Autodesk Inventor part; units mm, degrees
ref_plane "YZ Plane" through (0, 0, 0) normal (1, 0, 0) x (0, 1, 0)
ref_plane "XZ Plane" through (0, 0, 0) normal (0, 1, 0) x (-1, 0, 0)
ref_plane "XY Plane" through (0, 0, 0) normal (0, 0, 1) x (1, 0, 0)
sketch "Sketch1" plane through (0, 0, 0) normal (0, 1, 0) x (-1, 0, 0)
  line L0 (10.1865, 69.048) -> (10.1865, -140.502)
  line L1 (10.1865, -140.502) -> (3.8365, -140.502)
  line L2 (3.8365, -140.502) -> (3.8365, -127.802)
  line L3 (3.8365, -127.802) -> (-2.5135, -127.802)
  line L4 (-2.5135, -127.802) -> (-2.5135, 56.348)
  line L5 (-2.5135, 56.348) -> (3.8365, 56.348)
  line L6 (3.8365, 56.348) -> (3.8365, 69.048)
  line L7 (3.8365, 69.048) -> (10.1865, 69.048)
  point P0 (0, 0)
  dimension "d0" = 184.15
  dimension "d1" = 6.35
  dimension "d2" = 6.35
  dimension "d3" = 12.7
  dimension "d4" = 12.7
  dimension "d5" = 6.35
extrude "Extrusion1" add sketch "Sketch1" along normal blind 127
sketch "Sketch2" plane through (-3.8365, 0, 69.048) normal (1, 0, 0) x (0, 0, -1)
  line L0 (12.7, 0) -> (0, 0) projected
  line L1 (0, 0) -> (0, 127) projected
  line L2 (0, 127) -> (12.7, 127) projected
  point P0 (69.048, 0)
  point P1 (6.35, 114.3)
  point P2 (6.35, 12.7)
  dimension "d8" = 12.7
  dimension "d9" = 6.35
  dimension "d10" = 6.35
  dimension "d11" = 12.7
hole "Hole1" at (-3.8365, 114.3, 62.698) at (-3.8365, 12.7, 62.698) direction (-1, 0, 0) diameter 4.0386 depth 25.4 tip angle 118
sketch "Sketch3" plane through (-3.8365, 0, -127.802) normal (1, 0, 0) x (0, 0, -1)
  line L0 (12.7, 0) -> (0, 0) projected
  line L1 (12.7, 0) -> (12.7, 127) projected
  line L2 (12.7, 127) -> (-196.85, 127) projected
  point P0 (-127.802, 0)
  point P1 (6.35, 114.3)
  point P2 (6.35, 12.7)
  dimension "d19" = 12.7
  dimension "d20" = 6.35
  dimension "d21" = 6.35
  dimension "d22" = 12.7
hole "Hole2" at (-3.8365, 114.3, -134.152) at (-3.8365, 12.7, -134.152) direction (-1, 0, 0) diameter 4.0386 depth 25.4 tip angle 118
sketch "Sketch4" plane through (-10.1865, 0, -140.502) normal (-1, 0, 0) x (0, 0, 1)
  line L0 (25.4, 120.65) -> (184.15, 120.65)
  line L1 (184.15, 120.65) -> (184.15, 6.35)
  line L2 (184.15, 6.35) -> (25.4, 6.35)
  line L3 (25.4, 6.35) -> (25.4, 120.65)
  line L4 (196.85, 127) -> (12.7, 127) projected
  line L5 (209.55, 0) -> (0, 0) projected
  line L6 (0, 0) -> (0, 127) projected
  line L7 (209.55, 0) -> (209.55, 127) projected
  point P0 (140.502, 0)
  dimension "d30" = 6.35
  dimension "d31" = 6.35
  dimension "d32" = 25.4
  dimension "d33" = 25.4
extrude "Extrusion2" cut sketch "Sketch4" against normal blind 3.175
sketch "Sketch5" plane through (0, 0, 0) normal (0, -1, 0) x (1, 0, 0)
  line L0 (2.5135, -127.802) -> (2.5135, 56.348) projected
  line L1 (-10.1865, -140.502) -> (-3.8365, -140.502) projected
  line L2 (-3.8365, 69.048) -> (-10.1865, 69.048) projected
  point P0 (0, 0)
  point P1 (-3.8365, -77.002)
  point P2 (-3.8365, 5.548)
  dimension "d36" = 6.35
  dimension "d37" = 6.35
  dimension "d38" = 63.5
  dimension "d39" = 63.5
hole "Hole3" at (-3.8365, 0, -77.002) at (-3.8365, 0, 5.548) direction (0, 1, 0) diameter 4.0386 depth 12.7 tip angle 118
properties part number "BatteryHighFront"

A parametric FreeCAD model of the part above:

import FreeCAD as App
import Part
import Sketcher

V = App.Vector
Q = App.Units.Quantity

doc = App.newDocument("Part")
body = doc.addObject("PartDesign::Body", "Body")

sketch1 = doc.addObject("Sketcher::SketchObject", "Sketch")
body.addObject(sketch1)
sketch1.AttachmentSupport = (doc.XZ_Plane, [""])
sketch1.MapMode = "FlatFace"
sketch1.addGeometry(Part.LineSegment(V(-10.1865, -140.502, 0), V(-10.1865, 69.048, 0)), False)
sketch1.addGeometry(Part.LineSegment(V(-10.1865, 69.048, 0), V(-3.8365, 69.048, 0)), False)
sketch1.addGeometry(Part.LineSegment(V(-3.8365, 69.048, 0), V(-3.8365, 56.348, 0)), False)
sketch1.addGeometry(Part.LineSegment(V(-3.8365, 56.348, 0), V(2.5135, 56.348, 0)), False)
sketch1.addGeometry(Part.LineSegment(V(2.5135, 56.348, 0), V(2.5135, -127.802, 0)), False)
sketch1.addGeometry(Part.LineSegment(V(2.5135, -127.802, 0), V(-3.8365, -127.802, 0)), False)
sketch1.addGeometry(Part.LineSegment(V(-3.8365, -127.802, 0), V(-3.8365, -140.502, 0)), False)
sketch1.addGeometry(Part.LineSegment(V(-3.8365, -140.502, 0), V(-10.1865, -140.502, 0)), False)
sketch1.addConstraint(Sketcher.Constraint("Coincident", 0, 2, 1, 1))
sketch1.addConstraint(Sketcher.Constraint("Coincident", 1, 2, 2, 1))
sketch1.addConstraint(Sketcher.Constraint("Coincident", 2, 2, 3, 1))
sketch1.addConstraint(Sketcher.Constraint("Coincident", 3, 2, 4, 1))
sketch1.addConstraint(Sketcher.Constraint("Coincident", 4, 2, 5, 1))
sketch1.addConstraint(Sketcher.Constraint("Coincident", 5, 2, 6, 1))
sketch1.addConstraint(Sketcher.Constraint("Coincident", 6, 2, 7, 1))
sketch1.addConstraint(Sketcher.Constraint("Coincident", 7, 2, 0, 1))
sketch1.addConstraint(Sketcher.Constraint("Vertical", 0))
sketch1.addConstraint(Sketcher.Constraint("Horizontal", 1))
sketch1.addConstraint(Sketcher.Constraint("Vertical", 2))
sketch1.addConstraint(Sketcher.Constraint("Horizontal", 3))
sketch1.addConstraint(Sketcher.Constraint("Vertical", 4))
sketch1.addConstraint(Sketcher.Constraint("Horizontal", 5))
sketch1.addConstraint(Sketcher.Constraint("Vertical", 6))
sketch1.addConstraint(Sketcher.Constraint("Horizontal", 7))
sketch1.addConstraint(Sketcher.Constraint("Vertical", 2, 2, 5, 2))
sketch1.addConstraint(Sketcher.Constraint("Equal", 1, 3))
sketch1.addConstraint(Sketcher.Constraint("Equal", 2, 6))
sketch1.addConstraint(Sketcher.Constraint("DistanceY", 2, 2, 2, 1, Q("0.5 in")))
sketch1.addConstraint(Sketcher.Constraint("DistanceX", 1, 1, 1, 2, Q("0.25 in")))
sketch1.addConstraint(Sketcher.Constraint("DistanceY", 4, 2, 4, 1, Q("7.25 in")))
sketch1.addConstraint(Sketcher.Constraint("DistanceX", 0, 2, -1, 1, Q("10.1865 mm")))
sketch1.addConstraint(Sketcher.Constraint("DistanceY", -1, 1, 0, 2, Q("69.048 mm")))
pad1 = doc.addObject("PartDesign::Pad", "Pad")
body.addObject(pad1)
pad1.Profile = sketch1
pad1.Length = Q("5 in")
pad1.Reversed = True

sketch2 = doc.addObject("Sketcher::SketchObject", "Sketch001")
body.addObject(sketch2)
sketch2.AttachmentSupport = (doc.YZ_Plane, [""])
sketch2.MapMode = "FlatFace"
sketch2.AttachmentOffset = App.Placement(V(0, 0, -3.8365), App.Rotation())
sketch2.addGeometry(Part.Circle(V(114.3, 62.698, 0), V(0, 0, 1), 2.0193), False)
sketch2.addGeometry(Part.Circle(V(12.7, 62.698, 0), V(0, 0, 1), 2.0193), False)
sketch2.addConstraint(Sketcher.Constraint("Equal", 0, 1))
sketch2.addConstraint(Sketcher.Constraint("Horizontal", 0, 3, 1, 3))
sketch2.addConstraint(Sketcher.Constraint("Diameter", 0, Q("0.159 in")))
sketch2.addConstraint(Sketcher.Constraint("DistanceX", 1, 3, 0, 3, Q("4 in")))
sketch2.addConstraint(Sketcher.Constraint("DistanceX", -1, 1, 0, 3, Q("4.5 in")))
sketch2.addConstraint(Sketcher.Constraint("DistanceY", -1, 1, 0, 3, Q("62.698 mm")))
doc.recompute()
hole = doc.addObject("PartDesign::Hole", "Hole")
body.addObject(hole)
hole.Profile = sketch2
hole.ThreadType = "None"
hole.Diameter = Q("0.159 in")
hole.DepthType = "Dimension"
hole.Depth = Q("1 in")
hole.DrillPoint = "Angled"
hole.DrillPointAngle = 118

sketch3 = doc.addObject("Sketcher::SketchObject", "Sketch002")
body.addObject(sketch3)
sketch3.AttachmentSupport = (doc.YZ_Plane, [""])
sketch3.MapMode = "FlatFace"
sketch3.AttachmentOffset = App.Placement(V(0, 0, -3.8365), App.Rotation())
sketch3.addGeometry(Part.Circle(V(114.3, -134.152, 0), V(0, 0, 1), 2.0193), False)
sketch3.addGeometry(Part.Circle(V(12.7, -134.152, 0), V(0, 0, 1), 2.0193), False)
sketch3.addConstraint(Sketcher.Constraint("Equal", 0, 1))
sketch3.addConstraint(Sketcher.Constraint("Horizontal", 0, 3, 1, 3))
sketch3.addConstraint(Sketcher.Constraint("Diameter", 0, Q("0.159 in")))
sketch3.addConstraint(Sketcher.Constraint("DistanceX", 1, 3, 0, 3, Q("4 in")))
sketch3.addConstraint(Sketcher.Constraint("DistanceX", -1, 1, 0, 3, Q("4.5 in")))
sketch3.addConstraint(Sketcher.Constraint("DistanceY", 0, 3, -1, 1, Q("134.152 mm")))
doc.recompute()
hole2 = doc.addObject("PartDesign::Hole", "Hole001")
body.addObject(hole2)
hole2.Profile = sketch3
hole2.ThreadType = "None"
hole2.Diameter = Q("0.159 in")
hole2.DepthType = "Dimension"
hole2.Depth = Q("1 in")
hole2.DrillPoint = "Angled"
hole2.DrillPointAngle = 118

sketch4 = doc.addObject("Sketcher::SketchObject", "Sketch003")
body.addObject(sketch4)
sketch4.AttachmentSupport = (doc.YZ_Plane, [""])
sketch4.MapMode = "FlatFace"
sketch4.AttachmentOffset = App.Placement(V(0, 0, -10.1865), App.Rotation())
sketch4.addGeometry(Part.LineSegment(V(120.65, 43.648, 0), V(120.65, -115.102, 0)), False)
sketch4.addGeometry(Part.LineSegment(V(120.65, -115.102, 0), V(6.35, -115.102, 0)), False)
sketch4.addGeometry(Part.LineSegment(V(6.35, -115.102, 0), V(6.35, 43.648, 0)), False)
sketch4.addGeometry(Part.LineSegment(V(6.35, 43.648, 0), V(120.65, 43.648, 0)), False)
sketch4.addConstraint(Sketcher.Constraint("Coincident", 0, 2, 1, 1))
sketch4.addConstraint(Sketcher.Constraint("Coincident", 1, 2, 2, 1))
sketch4.addConstraint(Sketcher.Constraint("Coincident", 2, 2, 3, 1))
sketch4.addConstraint(Sketcher.Constraint("Coincident", 3, 2, 0, 1))
sketch4.addConstraint(Sketcher.Constraint("Vertical", 0))
sketch4.addConstraint(Sketcher.Constraint("Horizontal", 1))
sketch4.addConstraint(Sketcher.Constraint("Vertical", 2))
sketch4.addConstraint(Sketcher.Constraint("Horizontal", 3))
sketch4.addConstraint(Sketcher.Constraint("DistanceX", -1, 1, 1, 2, Q("0.25 in")))
sketch4.addConstraint(Sketcher.Constraint("DistanceX", 1, 2, 1, 1, Q("4.5 in")))
sketch4.addConstraint(Sketcher.Constraint("DistanceY", 0, 2, 0, 1, Q("6.25 in")))
sketch4.addConstraint(Sketcher.Constraint("DistanceY", 0, 2, -1, 1, Q("115.102 mm")))
pocket1 = doc.addObject("PartDesign::Pocket", "Pocket")
body.addObject(pocket1)
pocket1.Profile = sketch4
pocket1.Length = Q("0.125 in")
pocket1.Reversed = True

sketch5 = doc.addObject("Sketcher::SketchObject", "Sketch004")
body.addObject(sketch5)
sketch5.AttachmentSupport = (doc.XZ_Plane, [""])
sketch5.MapMode = "FlatFace"
sketch5.addGeometry(Part.Circle(V(-3.8365, -77.002, 0), V(0, 0, 1), 2.0193), False)
sketch5.addGeometry(Part.Circle(V(-3.8365, 5.548, 0), V(0, 0, 1), 2.0193), False)
sketch5.addConstraint(Sketcher.Constraint("Equal", 0, 1))
sketch5.addConstraint(Sketcher.Constraint("Vertical", 0, 3, 1, 3))
sketch5.addConstraint(Sketcher.Constraint("Diameter", 0, Q("0.159 in")))
sketch5.addConstraint(Sketcher.Constraint("DistanceY", 0, 3, 1, 3, Q("3.25 in")))
sketch5.addConstraint(Sketcher.Constraint("DistanceX", 0, 3, -1, 1, Q("3.8365 mm")))
sketch5.addConstraint(Sketcher.Constraint("DistanceY", 0, 3, -1, 1, Q("77.002 mm")))
doc.recompute()
hole3 = doc.addObject("PartDesign::Hole", "Hole002")
body.addObject(hole3)
hole3.Profile = sketch5
hole3.ThreadType = "None"
hole3.Diameter = Q("0.159 in")
hole3.DepthType = "Dimension"
hole3.Depth = Q("0.5 in")
hole3.DrillPoint = "Angled"
hole3.DrillPointAngle = 118

doc.recompute()
